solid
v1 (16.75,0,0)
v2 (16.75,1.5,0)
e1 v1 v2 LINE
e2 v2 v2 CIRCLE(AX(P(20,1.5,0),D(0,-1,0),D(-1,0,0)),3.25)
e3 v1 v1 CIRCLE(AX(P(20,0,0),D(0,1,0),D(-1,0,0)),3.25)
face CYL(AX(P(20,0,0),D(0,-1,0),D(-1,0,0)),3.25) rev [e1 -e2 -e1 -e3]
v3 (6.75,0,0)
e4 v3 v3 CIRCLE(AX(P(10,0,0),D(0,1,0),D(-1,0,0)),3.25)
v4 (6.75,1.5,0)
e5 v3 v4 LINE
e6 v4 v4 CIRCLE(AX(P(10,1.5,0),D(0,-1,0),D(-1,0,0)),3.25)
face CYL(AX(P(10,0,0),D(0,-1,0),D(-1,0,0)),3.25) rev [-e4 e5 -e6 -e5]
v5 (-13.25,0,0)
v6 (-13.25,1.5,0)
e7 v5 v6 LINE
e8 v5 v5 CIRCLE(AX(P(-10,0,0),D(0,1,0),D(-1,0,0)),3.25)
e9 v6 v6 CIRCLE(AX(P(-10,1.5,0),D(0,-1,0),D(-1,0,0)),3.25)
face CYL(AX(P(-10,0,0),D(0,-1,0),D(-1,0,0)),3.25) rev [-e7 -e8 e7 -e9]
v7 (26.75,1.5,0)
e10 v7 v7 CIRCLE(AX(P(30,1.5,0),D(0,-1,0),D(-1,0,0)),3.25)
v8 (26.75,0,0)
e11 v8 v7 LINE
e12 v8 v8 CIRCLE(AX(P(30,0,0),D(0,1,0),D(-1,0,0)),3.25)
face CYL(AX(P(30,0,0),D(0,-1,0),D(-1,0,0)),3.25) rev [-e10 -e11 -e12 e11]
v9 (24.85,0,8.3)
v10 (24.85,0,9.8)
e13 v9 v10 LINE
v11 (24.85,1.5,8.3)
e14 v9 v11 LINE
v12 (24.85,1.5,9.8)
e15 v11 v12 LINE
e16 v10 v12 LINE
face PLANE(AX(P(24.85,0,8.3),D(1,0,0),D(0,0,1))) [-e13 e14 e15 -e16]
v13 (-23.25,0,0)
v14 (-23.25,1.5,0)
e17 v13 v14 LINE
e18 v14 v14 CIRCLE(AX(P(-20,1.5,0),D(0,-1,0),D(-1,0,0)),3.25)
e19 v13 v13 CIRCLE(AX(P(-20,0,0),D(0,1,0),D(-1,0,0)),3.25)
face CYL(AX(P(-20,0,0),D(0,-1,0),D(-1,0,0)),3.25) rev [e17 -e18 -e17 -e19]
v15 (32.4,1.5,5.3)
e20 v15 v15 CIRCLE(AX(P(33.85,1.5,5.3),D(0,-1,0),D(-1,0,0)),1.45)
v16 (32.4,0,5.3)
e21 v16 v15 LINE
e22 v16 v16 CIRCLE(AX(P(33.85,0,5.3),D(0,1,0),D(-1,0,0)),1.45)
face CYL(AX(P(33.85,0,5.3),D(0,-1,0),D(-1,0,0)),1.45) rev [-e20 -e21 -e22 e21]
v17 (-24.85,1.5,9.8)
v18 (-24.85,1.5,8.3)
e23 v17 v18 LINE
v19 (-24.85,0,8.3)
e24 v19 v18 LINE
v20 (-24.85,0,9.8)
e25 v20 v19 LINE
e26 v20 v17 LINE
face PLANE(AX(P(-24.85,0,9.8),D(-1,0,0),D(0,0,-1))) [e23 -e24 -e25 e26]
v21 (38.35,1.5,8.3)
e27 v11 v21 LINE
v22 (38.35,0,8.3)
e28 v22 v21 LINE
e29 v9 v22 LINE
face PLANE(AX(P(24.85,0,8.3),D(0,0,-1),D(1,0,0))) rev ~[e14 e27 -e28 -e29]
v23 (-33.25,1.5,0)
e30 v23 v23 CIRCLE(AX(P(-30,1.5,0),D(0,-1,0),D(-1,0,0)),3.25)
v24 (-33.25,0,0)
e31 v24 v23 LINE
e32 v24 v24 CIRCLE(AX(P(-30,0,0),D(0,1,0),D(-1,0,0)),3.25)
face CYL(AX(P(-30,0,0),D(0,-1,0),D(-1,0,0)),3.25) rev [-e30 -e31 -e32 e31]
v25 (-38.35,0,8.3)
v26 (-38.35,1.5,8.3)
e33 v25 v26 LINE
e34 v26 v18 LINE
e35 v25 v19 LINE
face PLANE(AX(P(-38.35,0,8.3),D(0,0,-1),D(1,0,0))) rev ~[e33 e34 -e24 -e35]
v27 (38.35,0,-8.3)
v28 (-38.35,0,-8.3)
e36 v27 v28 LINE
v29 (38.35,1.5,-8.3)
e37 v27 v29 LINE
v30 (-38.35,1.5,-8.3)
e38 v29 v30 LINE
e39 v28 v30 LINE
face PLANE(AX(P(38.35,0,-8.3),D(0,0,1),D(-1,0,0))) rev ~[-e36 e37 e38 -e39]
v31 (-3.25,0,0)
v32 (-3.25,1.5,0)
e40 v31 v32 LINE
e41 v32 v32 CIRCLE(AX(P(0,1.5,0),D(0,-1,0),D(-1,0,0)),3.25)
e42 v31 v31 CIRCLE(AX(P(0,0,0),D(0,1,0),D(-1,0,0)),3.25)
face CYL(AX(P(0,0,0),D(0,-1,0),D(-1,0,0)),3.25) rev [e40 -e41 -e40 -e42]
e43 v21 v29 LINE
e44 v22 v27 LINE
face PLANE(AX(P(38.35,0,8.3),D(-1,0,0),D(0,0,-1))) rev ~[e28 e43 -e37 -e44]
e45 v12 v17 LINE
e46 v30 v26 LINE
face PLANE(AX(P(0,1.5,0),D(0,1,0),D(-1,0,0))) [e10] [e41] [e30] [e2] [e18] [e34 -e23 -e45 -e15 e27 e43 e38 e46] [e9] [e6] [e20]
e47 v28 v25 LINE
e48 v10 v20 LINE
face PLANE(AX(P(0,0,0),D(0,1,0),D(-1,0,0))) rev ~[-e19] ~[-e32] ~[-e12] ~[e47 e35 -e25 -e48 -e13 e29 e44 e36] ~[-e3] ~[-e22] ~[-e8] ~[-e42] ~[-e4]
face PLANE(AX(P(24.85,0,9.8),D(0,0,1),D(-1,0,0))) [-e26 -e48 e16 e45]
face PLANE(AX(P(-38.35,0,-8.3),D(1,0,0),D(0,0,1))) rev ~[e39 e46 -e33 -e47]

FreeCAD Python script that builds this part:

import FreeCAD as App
import Part
import Sketcher

V = App.Vector
Q = App.Units.Quantity


def add_polygon(sketch, points):
    """Adds a closed chain of lines whose ends are joined by coincident constraints."""
    first, n = sketch.GeometryCount, len(points)
    for a, b in zip(points, points[1:] + points[:1]):
        sketch.addGeometry(Part.LineSegment(App.Vector(*a, 0), App.Vector(*b, 0)), False)
    for i in range(n):
        sketch.addConstraint(Sketcher.Constraint("Coincident", first + i, 2, first + (i + 1) % n, 1))

doc = App.newDocument("Part")
body = doc.addObject("PartDesign::Body", "Body")

# Sketch on XZ plane
sketch1 = doc.addObject("Sketcher::SketchObject", "Sketch")
body.addObject(sketch1)
sketch1.AttachmentSupport = (doc.XZ_Plane, [""])
sketch1.MapMode = "FlatFace"
add_polygon(sketch1, [(-38.4, -8.3), (-38.4, 8.3), (-24.9, 8.3), (-24.9, 9.8), (24.9, 9.8), (24.9, 8.3), (38.4, 8.3), (38.4, -8.3)])  # lines 0-7
sketch1.addConstraint(Sketcher.Constraint("Vertical", 0))
sketch1.addConstraint(Sketcher.Constraint("Horizontal", 1))
sketch1.addConstraint(Sketcher.Constraint("Vertical", 2))
sketch1.addConstraint(Sketcher.Constraint("Horizontal", 3))
sketch1.addConstraint(Sketcher.Constraint("Vertical", 4))
sketch1.addConstraint(Sketcher.Constraint("Horizontal", 5))
sketch1.addConstraint(Sketcher.Constraint("Vertical", 6))
sketch1.addConstraint(Sketcher.Constraint("Horizontal", 7))
sketch1.addConstraint(Sketcher.Constraint("Symmetric", 0, 2, 6, 2, -1, 1))
sketch1.addConstraint(Sketcher.Constraint("Symmetric", 1, 2, 4, 2, -2))
sketch1.addConstraint(Sketcher.Constraint("DistanceX", 1, 1, 1, 2, Q("13.5 mm")))
sketch1.addConstraint(Sketcher.Constraint("DistanceX", 7, 2, 7, 1, Q("76.7 mm")))
sketch1.addConstraint(Sketcher.Constraint("DistanceY", 0, 1, 0, 2, Q("16.6 mm")))
sketch1.addConstraint(Sketcher.Constraint("DistanceY", 2, 1, 2, 2, Q("1.5 mm")))
pad1 = doc.addObject("PartDesign::Pad", "Pad")
body.addObject(pad1)
pad1.Profile = sketch1
pad1.Length = 1.5
pad1.Reversed = True

# Sketch on XZ plane
sketch2 = doc.addObject("Sketcher::SketchObject", "Sketch001")
body.addObject(sketch2)
sketch2.AttachmentSupport = (doc.XZ_Plane, [""])
sketch2.MapMode = "FlatFace"
sketch2.addGeometry(Part.Circle(V(-30, 0, 0), V(0, 0, 1), 3.2), False)
sketch2.addConstraint(Sketcher.Constraint("PointOnObject", 0, 3, -1))
sketch2.addConstraint(Sketcher.Constraint("Diameter", 0, Q("6.5 mm")))
sketch2.addConstraint(Sketcher.Constraint("DistanceX", 0, 3, -1, 1, Q("30 mm")))
pocket1 = doc.addObject("PartDesign::Pocket", "Pocket")
body.addObject(pocket1)
pocket1.Profile = sketch2
pocket1.Type = "ThroughAll"
doc.recompute()

linearpattern = doc.addObject("PartDesign::LinearPattern", "LinearPattern")
body.addObject(linearpattern)
linearpattern.Originals = [pocket1]
linearpattern.Direction = (doc.X_Axis, [""])
linearpattern.Mode = "offset"
linearpattern.Offset = 10
linearpattern.Occurrences = 7
body.Tip = linearpattern

# Sketch on XZ plane
sketch3 = doc.addObject("Sketcher::SketchObject", "Sketch002")
body.addObject(sketch3)
sketch3.AttachmentSupport = (doc.XZ_Plane, [""])
sketch3.MapMode = "FlatFace"
sketch3.addGeometry(Part.Circle(V(33.9, 5.3, 0), V(0, 0, 1), 1.4), False)
sketch3.addConstraint(Sketcher.Constraint("Diameter", 0, Q("2.9 mm")))
sketch3.addConstraint(Sketcher.Constraint("DistanceY", -1, 1, 0, 3, Q("5.3 mm")))
sketch3.addConstraint(Sketcher.Constraint("DistanceX", -1, 1, 0, 3, Q("33.85 mm")))
pocket2 = doc.addObject("PartDesign::Pocket", "Pocket001")
body.addObject(pocket2)
pocket2.Profile = sketch3
pocket2.Type = "ThroughAll"

doc.recompute()
